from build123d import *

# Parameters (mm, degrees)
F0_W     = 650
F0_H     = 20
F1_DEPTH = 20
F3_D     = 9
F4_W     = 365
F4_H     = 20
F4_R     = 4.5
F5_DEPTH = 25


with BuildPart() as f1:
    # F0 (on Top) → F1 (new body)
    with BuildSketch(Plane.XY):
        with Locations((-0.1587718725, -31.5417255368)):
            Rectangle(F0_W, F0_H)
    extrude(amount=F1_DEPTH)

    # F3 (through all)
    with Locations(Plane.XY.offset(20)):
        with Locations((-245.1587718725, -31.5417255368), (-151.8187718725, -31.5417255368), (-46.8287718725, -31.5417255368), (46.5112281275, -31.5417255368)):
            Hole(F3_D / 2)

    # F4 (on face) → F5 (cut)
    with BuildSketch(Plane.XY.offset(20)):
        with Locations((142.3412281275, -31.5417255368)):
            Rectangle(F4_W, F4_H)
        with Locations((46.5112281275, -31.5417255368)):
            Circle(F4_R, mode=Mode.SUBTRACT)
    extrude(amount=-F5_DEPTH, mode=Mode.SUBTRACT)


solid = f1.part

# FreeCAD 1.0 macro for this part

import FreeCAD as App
import Part
import Sketcher
from FreeCAD import Vector

doc = App.newDocument("Part")
params = doc.addObject("Spreadsheet::Sheet", "Params")
for row, (alias, value) in enumerate([
    ("sketch1_width", "650 mm"),
    ("sketch1_height", "20 mm"),
    ("pad1_length", "20 mm"),
    ("sketch2_diameter", "9 mm"),
    ("hole_diameter", "9 mm"),
    ("sketch3_diameter", "9 mm"),
    ("sketch3_width", "365 mm"),
    ("sketch3_height", "20 mm"),
    ("pocket1_length", "25 mm"),
], start=1):
    params.set(f"A{row}", alias)
    params.set(f"B{row}", "=" + value)
    params.setAlias(f"B{row}", alias)

body = doc.addObject("PartDesign::Body", "Body")

# Sketch on XY plane
sketch1 = doc.addObject("Sketcher::SketchObject", "Sketch")
body.addObject(sketch1)
sketch1.AttachmentSupport = (doc.XY_Plane, [""])
sketch1.MapMode = "FlatFace"
sketch1.addGeometry(Part.LineSegment(Vector(-325.158772, -21.541726, 0), Vector(-325.158772, -41.541726, 0)), False)
sketch1.addGeometry(Part.LineSegment(Vector(-325.158772, -41.541726, 0), Vector(324.841228, -41.541726, 0)), False)
sketch1.addGeometry(Part.LineSegment(Vector(324.841228, -41.541726, 0), Vector(324.841228, -21.541726, 0)), False)
sketch1.addGeometry(Part.LineSegment(Vector(324.841228, -21.541726, 0), Vector(-325.158772, -21.541726, 0)), False)
sketch1.addConstraint(Sketcher.Constraint("Coincident", 0, 2, 1, 1))
sketch1.addConstraint(Sketcher.Constraint("Coincident", 1, 2, 2, 1))
sketch1.addConstraint(Sketcher.Constraint("Coincident", 2, 2, 3, 1))
sketch1.addConstraint(Sketcher.Constraint("Coincident", 3, 2, 0, 1))
sketch1.addConstraint(Sketcher.Constraint("Vertical", 0))
sketch1.addConstraint(Sketcher.Constraint("Horizontal", 1))
sketch1.addConstraint(Sketcher.Constraint("Vertical", 2))
sketch1.addConstraint(Sketcher.Constraint("Horizontal", 3))
sketch1.addConstraint(Sketcher.Constraint("DistanceX", 1, 1, 1, 2, 650.0))
sketch1.addConstraint(Sketcher.Constraint("DistanceY", 0, 2, 0, 1, 20.0))
sketch1.addConstraint(Sketcher.Constraint("DistanceX", 0, 2, -1, 1, 325.158772))
sketch1.addConstraint(Sketcher.Constraint("DistanceY", 0, 2, -1, 1, 41.541726))
sketch1.setExpression("Constraints[8]", "Params.sketch1_width")
sketch1.setExpression("Constraints[9]", "Params.sketch1_height")
pad1 = doc.addObject("PartDesign::Pad", "Pad")
body.addObject(pad1)
pad1.Profile = sketch1
pad1.setExpression("Length", "Params.pad1_length")

# Sketch on XY plane
sketch2 = doc.addObject("Sketcher::SketchObject", "Sketch001")
body.addObject(sketch2)
sketch2.AttachmentSupport = (doc.XY_Plane, [""])
sketch2.MapMode = "FlatFace"
sketch2.AttachmentOffset = App.Placement(Vector(0, 0, 20), App.Rotation())
sketch2.addGeometry(Part.Circle(Vector(-245.158772, -31.541726, 0), Vector(0, 0, 1), 4.5), False)
sketch2.addGeometry(Part.Circle(Vector(-151.818772, -31.541726, 0), Vector(0, 0, 1), 4.5), False)
sketch2.addGeometry(Part.Circle(Vector(-46.828772, -31.541726, 0), Vector(0, 0, 1), 4.5), False)
sketch2.addGeometry(Part.Circle(Vector(46.511228, -31.541726, 0), Vector(0, 0, 1), 4.5), False)
sketch2.addConstraint(Sketcher.Constraint("Equal", 0, 1))
sketch2.addConstraint(Sketcher.Constraint("Equal", 1, 2))
sketch2.addConstraint(Sketcher.Constraint("Equal", 2, 3))
sketch2.addConstraint(Sketcher.Constraint("Horizontal", 0, 3, 1, 3))
sketch2.addConstraint(Sketcher.Constraint("Horizontal", 1, 3, 2, 3))
sketch2.addConstraint(Sketcher.Constraint("Horizontal", 2, 3, 3, 3))
sketch2.addConstraint(Sketcher.Constraint("Diameter", 0, 9.0))
sketch2.addConstraint(Sketcher.Constraint("DistanceX", 0, 3, 1, 3, 93.34))
sketch2.addConstraint(Sketcher.Constraint("DistanceX", 1, 3, 2, 3, 104.99))
sketch2.addConstraint(Sketcher.Constraint("DistanceX", 2, 3, 3, 3, 93.34))
sketch2.addConstraint(Sketcher.Constraint("DistanceX", 0, 3, -1, 1, 245.158772))
sketch2.addConstraint(Sketcher.Constraint("DistanceY", 0, 3, -1, 1, 31.541726))
sketch2.setExpression("Constraints[6]", "Params.sketch2_diameter")
doc.recompute()
hole = doc.addObject("PartDesign::Hole", "Hole")
body.addObject(hole)
hole.Profile = sketch2
hole.ThreadType = "None"
hole.setExpression("Diameter", "Params.hole_diameter")
hole.DepthType = "ThroughAll"

# Sketch on XY plane
sketch3 = doc.addObject("Sketcher::SketchObject", "Sketch002")
body.addObject(sketch3)
sketch3.AttachmentSupport = (doc.XY_Plane, [""])
sketch3.MapMode = "FlatFace"
sketch3.AttachmentOffset = App.Placement(Vector(0, 0, 20), App.Rotation())
sketch3.addGeometry(Part.LineSegment(Vector(-40.158772, -21.541726, 0), Vector(-40.158772, -41.541726, 0)), False)
sketch3.addGeometry(Part.LineSegment(Vector(-40.158772, -41.541726, 0), Vector(324.841228, -41.541726, 0)), False)
sketch3.addGeometry(Part.LineSegment(Vector(324.841228, -41.541726, 0), Vector(324.841228, -21.541726, 0)), False)
sketch3.addGeometry(Part.LineSegment(Vector(324.841228, -21.541726, 0), Vector(-40.158772, -21.541726, 0)), False)
sketch3.addGeometry(Part.Circle(Vector(46.511228, -31.541726, 0), Vector(0, 0, 1), 4.5), False)
sketch3.addConstraint(Sketcher.Constraint("Coincident", 0, 2, 1, 1))
sketch3.addConstraint(Sketcher.Constraint("Coincident", 1, 2, 2, 1))
sketch3.addConstraint(Sketcher.Constraint("Coincident", 2, 2, 3, 1))
sketch3.addConstraint(Sketcher.Constraint("Coincident", 3, 2, 0, 1))
sketch3.addConstraint(Sketcher.Constraint("Vertical", 0))
sketch3.addConstraint(Sketcher.Constraint("Horizontal", 1))
sketch3.addConstraint(Sketcher.Constraint("Vertical", 2))
sketch3.addConstraint(Sketcher.Constraint("Horizontal", 3))
sketch3.addConstraint(Sketcher.Constraint("Diameter", 4, 9.0))
sketch3.addConstraint(Sketcher.Constraint("DistanceX", 1, 1, 1, 2, 365.0))
sketch3.addConstraint(Sketcher.Constraint("DistanceY", 0, 2, 0, 1, 20.0))
sketch3.addConstraint(Sketcher.Constraint("DistanceY", 0, 2, 4, 3, 10.0))
sketch3.addConstraint(Sketcher.Constraint("DistanceX", 0, 2, 4, 3, 86.67))
sketch3.addConstraint(Sketcher.Constraint("DistanceX", -1, 1, 4, 3, 46.511228))
sketch3.addConstraint(Sketcher.Constraint("DistanceY", 4, 3, -1, 1, 31.541726))
sketch3.setExpression("Constraints[8]", "Params.sketch3_diameter")
sketch3.setExpression("Constraints[9]", "Params.sketch3_width")
sketch3.setExpression("Constraints[10]", "Params.sketch3_height")
pocket1 = doc.addObject("PartDesign::Pocket", "Pocket")
body.addObject(pocket1)
pocket1.Profile = sketch3
pocket1.setExpression("Length", "Params.pocket1_length")

doc.recompute()
